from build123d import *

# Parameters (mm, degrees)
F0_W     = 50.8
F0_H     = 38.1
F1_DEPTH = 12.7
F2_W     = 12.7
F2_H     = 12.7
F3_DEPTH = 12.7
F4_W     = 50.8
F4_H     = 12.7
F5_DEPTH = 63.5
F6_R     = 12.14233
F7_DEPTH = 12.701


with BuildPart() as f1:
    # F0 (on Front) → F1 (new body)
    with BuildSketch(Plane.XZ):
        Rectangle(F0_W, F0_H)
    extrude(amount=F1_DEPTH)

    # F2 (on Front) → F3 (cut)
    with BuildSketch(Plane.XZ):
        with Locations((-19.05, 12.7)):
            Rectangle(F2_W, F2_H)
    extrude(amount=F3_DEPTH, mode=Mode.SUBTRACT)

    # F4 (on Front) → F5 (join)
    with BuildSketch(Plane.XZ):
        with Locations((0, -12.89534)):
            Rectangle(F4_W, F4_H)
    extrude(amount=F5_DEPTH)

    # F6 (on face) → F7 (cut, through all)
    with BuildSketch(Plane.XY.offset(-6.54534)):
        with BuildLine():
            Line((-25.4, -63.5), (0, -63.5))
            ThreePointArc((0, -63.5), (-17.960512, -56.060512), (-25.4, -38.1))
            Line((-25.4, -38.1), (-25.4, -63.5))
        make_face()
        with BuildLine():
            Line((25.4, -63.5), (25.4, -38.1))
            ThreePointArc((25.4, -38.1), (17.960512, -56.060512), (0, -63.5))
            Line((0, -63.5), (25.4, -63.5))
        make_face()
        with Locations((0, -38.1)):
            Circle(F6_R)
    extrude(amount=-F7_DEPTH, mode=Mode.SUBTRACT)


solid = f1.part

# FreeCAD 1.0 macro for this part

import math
import FreeCAD as App
import Part
import Sketcher
Q = App.Units.Quantity


def add_polygon(sketch, points):
    """Adds a closed chain of lines whose ends are joined by coincident constraints."""
    first, n = sketch.GeometryCount, len(points)
    for a, b in zip(points, points[1:] + points[:1]):
        sketch.addGeometry(Part.LineSegment(App.Vector(*a, 0), App.Vector(*b, 0)), False)
    for i in range(n):
        sketch.addConstraint(Sketcher.Constraint("Coincident", first + i, 2, first + (i + 1) % n, 1))

doc = App.newDocument("Part")
body = doc.addObject("PartDesign::Body", "Body")

sketch1 = doc.addObject("Sketcher::SketchObject", "Sketch")
body.addObject(sketch1)
sketch1.AttachmentSupport = (doc.XZ_Plane, [""])
sketch1.MapMode = "FlatFace"
add_polygon(sketch1, [(-25, 19), (-25, -19), (25, -19), (25, 19)])
sketch1.addConstraint([
    Sketcher.Constraint("Vertical", 0),
    Sketcher.Constraint("Horizontal", 1),
    Sketcher.Constraint("Vertical", 2),
    Sketcher.Constraint("Horizontal", 3),
    Sketcher.Constraint("Symmetric", 0, 2, 2, 2, -1, 1),
    Sketcher.Constraint("DistanceX", 1, 1, 1, 2, Q("2 in")),
    Sketcher.Constraint("DistanceY", 0, 2, 0, 1, Q("1.5 in")),
])
pad1 = doc.addObject("PartDesign::Pad", "Pad")
body.addObject(pad1)
pad1.Profile = sketch1
pad1.Length = Q("0.5 in")

sketch2 = doc.addObject("Sketcher::SketchObject", "Sketch001")
body.addObject(sketch2)
sketch2.AttachmentSupport = (doc.XZ_Plane, [""])
sketch2.MapMode = "FlatFace"
add_polygon(sketch2, [(-25, 19), (-25, 6), (-13, 6), (-13, 19)])
sketch2.addConstraint([
    Sketcher.Constraint("Vertical", 0),
    Sketcher.Constraint("Horizontal", 1),
    Sketcher.Constraint("Vertical", 2),
    Sketcher.Constraint("Horizontal", 3),
    Sketcher.Constraint("Equal", 3, 0),
    Sketcher.Constraint("DistanceX", 1, 1, 1, 2, Q("0.5 in")),
    Sketcher.Constraint("DistanceX", 0, 2, -1, 1, Q("1 in")),
    Sketcher.Constraint("DistanceY", -1, 1, 0, 2, Q("0.25 in")),
])
pocket1 = doc.addObject("PartDesign::Pocket", "Pocket")
body.addObject(pocket1)
pocket1.Profile = sketch2
pocket1.Length = Q("0.5 in")
pocket1.Reversed = True

sketch3 = doc.addObject("Sketcher::SketchObject", "Sketch002")
body.addObject(sketch3)
sketch3.AttachmentSupport = (doc.XZ_Plane, [""])
sketch3.MapMode = "FlatFace"
add_polygon(sketch3, [(-25, -7), (-25, -19), (25, -19), (25, -7)])
sketch3.addConstraint([
    Sketcher.Constraint("Vertical", 0),
    Sketcher.Constraint("Horizontal", 1),
    Sketcher.Constraint("Vertical", 2),
    Sketcher.Constraint("Horizontal", 3),
    Sketcher.Constraint("DistanceX", 1, 1, 1, 2, Q("2 in")),
    Sketcher.Constraint("DistanceY", 0, 2, 0, 1, Q("0.5 in")),
    Sketcher.Constraint("DistanceX", 0, 2, -1, 1, Q("1 in")),
    Sketcher.Constraint("DistanceY", 0, 2, -1, 1, Q("19.24534 mm")),
])
pad2 = doc.addObject("PartDesign::Pad", "Pad001")
body.addObject(pad2)
pad2.Profile = sketch3
pad2.Length = Q("2.5 in")

sketch4 = doc.addObject("Sketcher::SketchObject", "Sketch003")
body.addObject(sketch4)
sketch4.AttachmentSupport = (doc.XY_Plane, [""])
sketch4.MapMode = "FlatFace"
sketch4.AttachmentOffset = App.Placement(App.Vector(0, 0, -6.54534), App.Rotation())
sketch4.addGeometry([
    Part.LineSegment(App.Vector(-25, -64, 0), App.Vector(0, -64, 0)),
    Part.ArcOfCircle(Part.Circle(App.Vector(0, -38, 0), App.Vector(0, 0, 1), 25), math.radians(-180), math.radians(-90)),
    Part.LineSegment(App.Vector(-25, -38, 0), App.Vector(-25, -64, 0)),
    Part.LineSegment(App.Vector(25, -64, 0), App.Vector(25, -38, 0)),
    Part.ArcOfCircle(Part.Circle(App.Vector(0, -38, 0), App.Vector(0, 0, 1), 25), math.radians(-90), math.radians(0)),
    Part.LineSegment(App.Vector(0, -64, 0), App.Vector(25, -64, 0)),
    Part.Circle(App.Vector(0, -38, 0), App.Vector(0, 0, 1), 12),
], False)
sketch4.addConstraint([
    Sketcher.Constraint("Tangent", 0, 2, 1, 2),
    Sketcher.Constraint("Tangent", 1, 1, 2, 1),
    Sketcher.Constraint("Coincident", 2, 2, 0, 1),
    Sketcher.Constraint("Tangent", 3, 2, 4, 2),
    Sketcher.Constraint("Tangent", 4, 1, 5, 1),
    Sketcher.Constraint("Coincident", 5, 2, 3, 1),
    Sketcher.Constraint("Horizontal", 0),
    Sketcher.Constraint("Vertical", 2),
    Sketcher.Constraint("Vertical", 3),
    Sketcher.Constraint("Horizontal", 5),
    Sketcher.Constraint("Coincident", 4, 3, 1, 3),
    Sketcher.Constraint("Coincident", 6, 3, 1, 3),
    Sketcher.Constraint("Equal", 1, 4),
    Sketcher.Constraint("PointOnObject", 1, 3, -2),
    Sketcher.Constraint("Radius", 1, Q("1 in")),
    Sketcher.Constraint("DistanceY", 1, 3, -1, 1, Q("1.5 in")),
    Sketcher.Constraint("Diameter", 6, Q("24.28466 mm")),
])
pocket2 = doc.addObject("PartDesign::Pocket", "Pocket001")
body.addObject(pocket2)
pocket2.Profile = sketch4
pocket2.Type = "ThroughAll"

doc.recompute()
